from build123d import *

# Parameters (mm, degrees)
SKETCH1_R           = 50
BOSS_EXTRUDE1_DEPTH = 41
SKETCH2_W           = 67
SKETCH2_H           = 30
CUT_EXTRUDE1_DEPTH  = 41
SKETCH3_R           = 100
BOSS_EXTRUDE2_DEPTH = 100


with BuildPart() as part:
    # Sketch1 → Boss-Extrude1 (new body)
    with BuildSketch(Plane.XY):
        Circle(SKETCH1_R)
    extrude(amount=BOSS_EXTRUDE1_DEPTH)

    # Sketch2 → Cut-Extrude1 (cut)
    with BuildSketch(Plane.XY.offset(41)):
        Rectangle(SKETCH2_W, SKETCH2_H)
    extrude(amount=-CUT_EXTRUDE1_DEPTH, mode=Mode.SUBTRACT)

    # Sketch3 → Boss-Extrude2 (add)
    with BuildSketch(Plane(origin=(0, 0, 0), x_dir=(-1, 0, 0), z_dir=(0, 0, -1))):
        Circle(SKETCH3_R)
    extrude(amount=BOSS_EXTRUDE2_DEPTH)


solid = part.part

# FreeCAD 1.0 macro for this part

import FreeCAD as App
import Part
import Sketcher
from FreeCAD import Vector
Q = App.Units.Quantity


def add_polygon(sketch, points):
    """Adds a closed chain of lines whose ends are joined by coincident constraints."""
    first, n = sketch.GeometryCount, len(points)
    for a, b in zip(points, points[1:] + points[:1]):
        sketch.addGeometry(Part.LineSegment(App.Vector(*a, 0), App.Vector(*b, 0)), False)
    for i in range(n):
        sketch.addConstraint(Sketcher.Constraint("Coincident", first + i, 2, first + (i + 1) % n, 1))

doc = App.newDocument("Part")
body = doc.addObject("PartDesign::Body", "Body")

# Sketch on XY plane
sketch1 = body.newObject("Sketcher::SketchObject", "Sketch")
sketch1.AttachmentSupport = (doc.getObject("XY_Plane"), [""])
sketch1.MapMode = "FlatFace"
sketch1.addGeometry(Part.Circle(Vector(0, 0, 0), Vector(0, 0, 1), 50), False)
sketch1.addConstraint([
    Sketcher.Constraint("Coincident", 0, 3, -1, 1),
    Sketcher.Constraint("Diameter", 0, Q("100 mm")),
])
pad1 = body.newObject("PartDesign::Pad", "Pad")
pad1.Profile = sketch1
pad1.Length = 41

# Sketch on XY plane
sketch2 = body.newObject("Sketcher::SketchObject", "Sketch001")
sketch2.AttachmentSupport = (doc.getObject("XY_Plane"), [""])
sketch2.MapMode = "FlatFace"
sketch2.AttachmentOffset = App.Placement(Vector(0, 0, 41), App.Rotation())
add_polygon(sketch2, [(-34, 15), (-34, -15), (34, -15), (34, 15)])  # lines 0-3
sketch2.addConstraint([
    Sketcher.Constraint("Vertical", 0),
    Sketcher.Constraint("Horizontal", 1),
    Sketcher.Constraint("Vertical", 2),
    Sketcher.Constraint("Horizontal", 3),
    Sketcher.Constraint("Symmetric", 0, 2, 2, 2, -1, 1),
    Sketcher.Constraint("DistanceX", 1, 1, 1, 2, Q("67 mm")),
    Sketcher.Constraint("DistanceY", 0, 2, 0, 1, Q("30 mm")),
])
pocket1 = body.newObject("PartDesign::Pocket", "Pocket")
pocket1.Profile = sketch2
pocket1.Length = 41

# Sketch on XY plane
sketch3 = body.newObject("Sketcher::SketchObject", "Sketch002")
sketch3.AttachmentSupport = (doc.getObject("XY_Plane"), [""])
sketch3.MapMode = "FlatFace"
sketch3.addGeometry(Part.Circle(Vector(0, 0, 0), Vector(0, 0, 1), 100), False)
sketch3.addConstraint([
    Sketcher.Constraint("Coincident", 0, 3, -1, 1),
    Sketcher.Constraint("Diameter", 0, Q("200 mm")),
])
pad2 = body.newObject("PartDesign::Pad", "Pad001")
pad2.Profile = sketch3
pad2.Length = 100
pad2.Reversed = True

doc.recompute()
